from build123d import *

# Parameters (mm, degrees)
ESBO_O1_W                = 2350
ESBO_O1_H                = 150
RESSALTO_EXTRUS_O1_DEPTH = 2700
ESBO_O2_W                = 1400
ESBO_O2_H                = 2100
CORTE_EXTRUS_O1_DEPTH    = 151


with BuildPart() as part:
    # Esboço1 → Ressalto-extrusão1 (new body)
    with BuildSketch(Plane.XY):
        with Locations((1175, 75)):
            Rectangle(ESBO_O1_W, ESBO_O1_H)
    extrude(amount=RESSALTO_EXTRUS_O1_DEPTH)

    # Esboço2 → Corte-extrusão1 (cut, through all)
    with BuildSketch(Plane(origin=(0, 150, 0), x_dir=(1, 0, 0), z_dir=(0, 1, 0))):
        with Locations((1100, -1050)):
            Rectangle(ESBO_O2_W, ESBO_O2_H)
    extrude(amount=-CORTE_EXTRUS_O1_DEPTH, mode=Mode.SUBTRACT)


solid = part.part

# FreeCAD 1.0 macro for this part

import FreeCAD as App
import Part
import Sketcher

doc = App.newDocument("Part")
body = doc.addObject("PartDesign::Body", "Body")

# Sketch on XY plane
sketch1 = doc.addObject("Sketcher::SketchObject", "Sketch")
body.addObject(sketch1)
sketch1.AttachmentSupport = (doc.XY_Plane, [""])
sketch1.MapMode = "FlatFace"
sketch1.addGeometry(Part.LineSegment(App.Vector(0, 150, 0), App.Vector(0, 0, 0)), False)
sketch1.addGeometry(Part.LineSegment(App.Vector(0, 0, 0), App.Vector(2350, 0, 0)), False)
sketch1.addGeometry(Part.LineSegment(App.Vector(2350, 0, 0), App.Vector(2350, 150, 0)), False)
sketch1.addGeometry(Part.LineSegment(App.Vector(2350, 150, 0), App.Vector(0, 150, 0)), False)
sketch1.addConstraint(Sketcher.Constraint("Coincident", 0, 2, 1, 1))
sketch1.addConstraint(Sketcher.Constraint("Coincident", 1, 2, 2, 1))
sketch1.addConstraint(Sketcher.Constraint("Coincident", 2, 2, 3, 1))
sketch1.addConstraint(Sketcher.Constraint("Coincident", 3, 2, 0, 1))
sketch1.addConstraint(Sketcher.Constraint("Vertical", 0))
sketch1.addConstraint(Sketcher.Constraint("Horizontal", 1))
sketch1.addConstraint(Sketcher.Constraint("Vertical", 2))
sketch1.addConstraint(Sketcher.Constraint("Horizontal", 3))
sketch1.addConstraint(Sketcher.Constraint("Coincident", 0, 2, -1, 1))
sketch1.addConstraint(Sketcher.Constraint("DistanceX", 1, 1, 1, 2, 2350.0))
sketch1.addConstraint(Sketcher.Constraint("DistanceY", 0, 2, 0, 1, 150.0))
pad1 = doc.addObject("PartDesign::Pad", "Pad")
body.addObject(pad1)
pad1.Profile = sketch1
pad1.Length = 2700

# Sketch on XZ plane
sketch2 = doc.addObject("Sketcher::SketchObject", "Sketch001")
body.addObject(sketch2)
sketch2.AttachmentSupport = (doc.XZ_Plane, [""])
sketch2.MapMode = "FlatFace"
sketch2.AttachmentOffset = App.Placement(App.Vector(0, 0, -150), App.Rotation())
sketch2.addGeometry(Part.LineSegment(App.Vector(400, 0, 0), App.Vector(400, 2100, 0)), False)
sketch2.addGeometry(Part.LineSegment(App.Vector(400, 2100, 0), App.Vector(1800, 2100, 0)), False)
sketch2.addGeometry(Part.LineSegment(App.Vector(1800, 2100, 0), App.Vector(1800, 0, 0)), False)
sketch2.addGeometry(Part.LineSegment(App.Vector(1800, 0, 0), App.Vector(400, 0, 0)), False)
sketch2.addConstraint(Sketcher.Constraint("Coincident", 0, 2, 1, 1))
sketch2.addConstraint(Sketcher.Constraint("Coincident", 1, 2, 2, 1))
sketch2.addConstraint(Sketcher.Constraint("Coincident", 2, 2, 3, 1))
sketch2.addConstraint(Sketcher.Constraint("Coincident", 3, 2, 0, 1))
sketch2.addConstraint(Sketcher.Constraint("Vertical", 0))
sketch2.addConstraint(Sketcher.Constraint("Horizontal", 1))
sketch2.addConstraint(Sketcher.Constraint("Vertical", 2))
sketch2.addConstraint(Sketcher.Constraint("Horizontal", 3))
sketch2.addConstraint(Sketcher.Constraint("PointOnObject", 2, 2, -1))
sketch2.addConstraint(Sketcher.Constraint("DistanceX", 1, 1, 1, 2, 1400.0))
sketch2.addConstraint(Sketcher.Constraint("DistanceY", 0, 1, 0, 2, 2100.0))
sketch2.addConstraint(Sketcher.Constraint("DistanceX", -1, 1, 0, 2, 400.0))
pocket1 = doc.addObject("PartDesign::Pocket", "Pocket")
body.addObject(pocket1)
pocket1.Profile = sketch2
pocket1.Type = "ThroughAll"
pocket1.Reversed = True

doc.recompute()
